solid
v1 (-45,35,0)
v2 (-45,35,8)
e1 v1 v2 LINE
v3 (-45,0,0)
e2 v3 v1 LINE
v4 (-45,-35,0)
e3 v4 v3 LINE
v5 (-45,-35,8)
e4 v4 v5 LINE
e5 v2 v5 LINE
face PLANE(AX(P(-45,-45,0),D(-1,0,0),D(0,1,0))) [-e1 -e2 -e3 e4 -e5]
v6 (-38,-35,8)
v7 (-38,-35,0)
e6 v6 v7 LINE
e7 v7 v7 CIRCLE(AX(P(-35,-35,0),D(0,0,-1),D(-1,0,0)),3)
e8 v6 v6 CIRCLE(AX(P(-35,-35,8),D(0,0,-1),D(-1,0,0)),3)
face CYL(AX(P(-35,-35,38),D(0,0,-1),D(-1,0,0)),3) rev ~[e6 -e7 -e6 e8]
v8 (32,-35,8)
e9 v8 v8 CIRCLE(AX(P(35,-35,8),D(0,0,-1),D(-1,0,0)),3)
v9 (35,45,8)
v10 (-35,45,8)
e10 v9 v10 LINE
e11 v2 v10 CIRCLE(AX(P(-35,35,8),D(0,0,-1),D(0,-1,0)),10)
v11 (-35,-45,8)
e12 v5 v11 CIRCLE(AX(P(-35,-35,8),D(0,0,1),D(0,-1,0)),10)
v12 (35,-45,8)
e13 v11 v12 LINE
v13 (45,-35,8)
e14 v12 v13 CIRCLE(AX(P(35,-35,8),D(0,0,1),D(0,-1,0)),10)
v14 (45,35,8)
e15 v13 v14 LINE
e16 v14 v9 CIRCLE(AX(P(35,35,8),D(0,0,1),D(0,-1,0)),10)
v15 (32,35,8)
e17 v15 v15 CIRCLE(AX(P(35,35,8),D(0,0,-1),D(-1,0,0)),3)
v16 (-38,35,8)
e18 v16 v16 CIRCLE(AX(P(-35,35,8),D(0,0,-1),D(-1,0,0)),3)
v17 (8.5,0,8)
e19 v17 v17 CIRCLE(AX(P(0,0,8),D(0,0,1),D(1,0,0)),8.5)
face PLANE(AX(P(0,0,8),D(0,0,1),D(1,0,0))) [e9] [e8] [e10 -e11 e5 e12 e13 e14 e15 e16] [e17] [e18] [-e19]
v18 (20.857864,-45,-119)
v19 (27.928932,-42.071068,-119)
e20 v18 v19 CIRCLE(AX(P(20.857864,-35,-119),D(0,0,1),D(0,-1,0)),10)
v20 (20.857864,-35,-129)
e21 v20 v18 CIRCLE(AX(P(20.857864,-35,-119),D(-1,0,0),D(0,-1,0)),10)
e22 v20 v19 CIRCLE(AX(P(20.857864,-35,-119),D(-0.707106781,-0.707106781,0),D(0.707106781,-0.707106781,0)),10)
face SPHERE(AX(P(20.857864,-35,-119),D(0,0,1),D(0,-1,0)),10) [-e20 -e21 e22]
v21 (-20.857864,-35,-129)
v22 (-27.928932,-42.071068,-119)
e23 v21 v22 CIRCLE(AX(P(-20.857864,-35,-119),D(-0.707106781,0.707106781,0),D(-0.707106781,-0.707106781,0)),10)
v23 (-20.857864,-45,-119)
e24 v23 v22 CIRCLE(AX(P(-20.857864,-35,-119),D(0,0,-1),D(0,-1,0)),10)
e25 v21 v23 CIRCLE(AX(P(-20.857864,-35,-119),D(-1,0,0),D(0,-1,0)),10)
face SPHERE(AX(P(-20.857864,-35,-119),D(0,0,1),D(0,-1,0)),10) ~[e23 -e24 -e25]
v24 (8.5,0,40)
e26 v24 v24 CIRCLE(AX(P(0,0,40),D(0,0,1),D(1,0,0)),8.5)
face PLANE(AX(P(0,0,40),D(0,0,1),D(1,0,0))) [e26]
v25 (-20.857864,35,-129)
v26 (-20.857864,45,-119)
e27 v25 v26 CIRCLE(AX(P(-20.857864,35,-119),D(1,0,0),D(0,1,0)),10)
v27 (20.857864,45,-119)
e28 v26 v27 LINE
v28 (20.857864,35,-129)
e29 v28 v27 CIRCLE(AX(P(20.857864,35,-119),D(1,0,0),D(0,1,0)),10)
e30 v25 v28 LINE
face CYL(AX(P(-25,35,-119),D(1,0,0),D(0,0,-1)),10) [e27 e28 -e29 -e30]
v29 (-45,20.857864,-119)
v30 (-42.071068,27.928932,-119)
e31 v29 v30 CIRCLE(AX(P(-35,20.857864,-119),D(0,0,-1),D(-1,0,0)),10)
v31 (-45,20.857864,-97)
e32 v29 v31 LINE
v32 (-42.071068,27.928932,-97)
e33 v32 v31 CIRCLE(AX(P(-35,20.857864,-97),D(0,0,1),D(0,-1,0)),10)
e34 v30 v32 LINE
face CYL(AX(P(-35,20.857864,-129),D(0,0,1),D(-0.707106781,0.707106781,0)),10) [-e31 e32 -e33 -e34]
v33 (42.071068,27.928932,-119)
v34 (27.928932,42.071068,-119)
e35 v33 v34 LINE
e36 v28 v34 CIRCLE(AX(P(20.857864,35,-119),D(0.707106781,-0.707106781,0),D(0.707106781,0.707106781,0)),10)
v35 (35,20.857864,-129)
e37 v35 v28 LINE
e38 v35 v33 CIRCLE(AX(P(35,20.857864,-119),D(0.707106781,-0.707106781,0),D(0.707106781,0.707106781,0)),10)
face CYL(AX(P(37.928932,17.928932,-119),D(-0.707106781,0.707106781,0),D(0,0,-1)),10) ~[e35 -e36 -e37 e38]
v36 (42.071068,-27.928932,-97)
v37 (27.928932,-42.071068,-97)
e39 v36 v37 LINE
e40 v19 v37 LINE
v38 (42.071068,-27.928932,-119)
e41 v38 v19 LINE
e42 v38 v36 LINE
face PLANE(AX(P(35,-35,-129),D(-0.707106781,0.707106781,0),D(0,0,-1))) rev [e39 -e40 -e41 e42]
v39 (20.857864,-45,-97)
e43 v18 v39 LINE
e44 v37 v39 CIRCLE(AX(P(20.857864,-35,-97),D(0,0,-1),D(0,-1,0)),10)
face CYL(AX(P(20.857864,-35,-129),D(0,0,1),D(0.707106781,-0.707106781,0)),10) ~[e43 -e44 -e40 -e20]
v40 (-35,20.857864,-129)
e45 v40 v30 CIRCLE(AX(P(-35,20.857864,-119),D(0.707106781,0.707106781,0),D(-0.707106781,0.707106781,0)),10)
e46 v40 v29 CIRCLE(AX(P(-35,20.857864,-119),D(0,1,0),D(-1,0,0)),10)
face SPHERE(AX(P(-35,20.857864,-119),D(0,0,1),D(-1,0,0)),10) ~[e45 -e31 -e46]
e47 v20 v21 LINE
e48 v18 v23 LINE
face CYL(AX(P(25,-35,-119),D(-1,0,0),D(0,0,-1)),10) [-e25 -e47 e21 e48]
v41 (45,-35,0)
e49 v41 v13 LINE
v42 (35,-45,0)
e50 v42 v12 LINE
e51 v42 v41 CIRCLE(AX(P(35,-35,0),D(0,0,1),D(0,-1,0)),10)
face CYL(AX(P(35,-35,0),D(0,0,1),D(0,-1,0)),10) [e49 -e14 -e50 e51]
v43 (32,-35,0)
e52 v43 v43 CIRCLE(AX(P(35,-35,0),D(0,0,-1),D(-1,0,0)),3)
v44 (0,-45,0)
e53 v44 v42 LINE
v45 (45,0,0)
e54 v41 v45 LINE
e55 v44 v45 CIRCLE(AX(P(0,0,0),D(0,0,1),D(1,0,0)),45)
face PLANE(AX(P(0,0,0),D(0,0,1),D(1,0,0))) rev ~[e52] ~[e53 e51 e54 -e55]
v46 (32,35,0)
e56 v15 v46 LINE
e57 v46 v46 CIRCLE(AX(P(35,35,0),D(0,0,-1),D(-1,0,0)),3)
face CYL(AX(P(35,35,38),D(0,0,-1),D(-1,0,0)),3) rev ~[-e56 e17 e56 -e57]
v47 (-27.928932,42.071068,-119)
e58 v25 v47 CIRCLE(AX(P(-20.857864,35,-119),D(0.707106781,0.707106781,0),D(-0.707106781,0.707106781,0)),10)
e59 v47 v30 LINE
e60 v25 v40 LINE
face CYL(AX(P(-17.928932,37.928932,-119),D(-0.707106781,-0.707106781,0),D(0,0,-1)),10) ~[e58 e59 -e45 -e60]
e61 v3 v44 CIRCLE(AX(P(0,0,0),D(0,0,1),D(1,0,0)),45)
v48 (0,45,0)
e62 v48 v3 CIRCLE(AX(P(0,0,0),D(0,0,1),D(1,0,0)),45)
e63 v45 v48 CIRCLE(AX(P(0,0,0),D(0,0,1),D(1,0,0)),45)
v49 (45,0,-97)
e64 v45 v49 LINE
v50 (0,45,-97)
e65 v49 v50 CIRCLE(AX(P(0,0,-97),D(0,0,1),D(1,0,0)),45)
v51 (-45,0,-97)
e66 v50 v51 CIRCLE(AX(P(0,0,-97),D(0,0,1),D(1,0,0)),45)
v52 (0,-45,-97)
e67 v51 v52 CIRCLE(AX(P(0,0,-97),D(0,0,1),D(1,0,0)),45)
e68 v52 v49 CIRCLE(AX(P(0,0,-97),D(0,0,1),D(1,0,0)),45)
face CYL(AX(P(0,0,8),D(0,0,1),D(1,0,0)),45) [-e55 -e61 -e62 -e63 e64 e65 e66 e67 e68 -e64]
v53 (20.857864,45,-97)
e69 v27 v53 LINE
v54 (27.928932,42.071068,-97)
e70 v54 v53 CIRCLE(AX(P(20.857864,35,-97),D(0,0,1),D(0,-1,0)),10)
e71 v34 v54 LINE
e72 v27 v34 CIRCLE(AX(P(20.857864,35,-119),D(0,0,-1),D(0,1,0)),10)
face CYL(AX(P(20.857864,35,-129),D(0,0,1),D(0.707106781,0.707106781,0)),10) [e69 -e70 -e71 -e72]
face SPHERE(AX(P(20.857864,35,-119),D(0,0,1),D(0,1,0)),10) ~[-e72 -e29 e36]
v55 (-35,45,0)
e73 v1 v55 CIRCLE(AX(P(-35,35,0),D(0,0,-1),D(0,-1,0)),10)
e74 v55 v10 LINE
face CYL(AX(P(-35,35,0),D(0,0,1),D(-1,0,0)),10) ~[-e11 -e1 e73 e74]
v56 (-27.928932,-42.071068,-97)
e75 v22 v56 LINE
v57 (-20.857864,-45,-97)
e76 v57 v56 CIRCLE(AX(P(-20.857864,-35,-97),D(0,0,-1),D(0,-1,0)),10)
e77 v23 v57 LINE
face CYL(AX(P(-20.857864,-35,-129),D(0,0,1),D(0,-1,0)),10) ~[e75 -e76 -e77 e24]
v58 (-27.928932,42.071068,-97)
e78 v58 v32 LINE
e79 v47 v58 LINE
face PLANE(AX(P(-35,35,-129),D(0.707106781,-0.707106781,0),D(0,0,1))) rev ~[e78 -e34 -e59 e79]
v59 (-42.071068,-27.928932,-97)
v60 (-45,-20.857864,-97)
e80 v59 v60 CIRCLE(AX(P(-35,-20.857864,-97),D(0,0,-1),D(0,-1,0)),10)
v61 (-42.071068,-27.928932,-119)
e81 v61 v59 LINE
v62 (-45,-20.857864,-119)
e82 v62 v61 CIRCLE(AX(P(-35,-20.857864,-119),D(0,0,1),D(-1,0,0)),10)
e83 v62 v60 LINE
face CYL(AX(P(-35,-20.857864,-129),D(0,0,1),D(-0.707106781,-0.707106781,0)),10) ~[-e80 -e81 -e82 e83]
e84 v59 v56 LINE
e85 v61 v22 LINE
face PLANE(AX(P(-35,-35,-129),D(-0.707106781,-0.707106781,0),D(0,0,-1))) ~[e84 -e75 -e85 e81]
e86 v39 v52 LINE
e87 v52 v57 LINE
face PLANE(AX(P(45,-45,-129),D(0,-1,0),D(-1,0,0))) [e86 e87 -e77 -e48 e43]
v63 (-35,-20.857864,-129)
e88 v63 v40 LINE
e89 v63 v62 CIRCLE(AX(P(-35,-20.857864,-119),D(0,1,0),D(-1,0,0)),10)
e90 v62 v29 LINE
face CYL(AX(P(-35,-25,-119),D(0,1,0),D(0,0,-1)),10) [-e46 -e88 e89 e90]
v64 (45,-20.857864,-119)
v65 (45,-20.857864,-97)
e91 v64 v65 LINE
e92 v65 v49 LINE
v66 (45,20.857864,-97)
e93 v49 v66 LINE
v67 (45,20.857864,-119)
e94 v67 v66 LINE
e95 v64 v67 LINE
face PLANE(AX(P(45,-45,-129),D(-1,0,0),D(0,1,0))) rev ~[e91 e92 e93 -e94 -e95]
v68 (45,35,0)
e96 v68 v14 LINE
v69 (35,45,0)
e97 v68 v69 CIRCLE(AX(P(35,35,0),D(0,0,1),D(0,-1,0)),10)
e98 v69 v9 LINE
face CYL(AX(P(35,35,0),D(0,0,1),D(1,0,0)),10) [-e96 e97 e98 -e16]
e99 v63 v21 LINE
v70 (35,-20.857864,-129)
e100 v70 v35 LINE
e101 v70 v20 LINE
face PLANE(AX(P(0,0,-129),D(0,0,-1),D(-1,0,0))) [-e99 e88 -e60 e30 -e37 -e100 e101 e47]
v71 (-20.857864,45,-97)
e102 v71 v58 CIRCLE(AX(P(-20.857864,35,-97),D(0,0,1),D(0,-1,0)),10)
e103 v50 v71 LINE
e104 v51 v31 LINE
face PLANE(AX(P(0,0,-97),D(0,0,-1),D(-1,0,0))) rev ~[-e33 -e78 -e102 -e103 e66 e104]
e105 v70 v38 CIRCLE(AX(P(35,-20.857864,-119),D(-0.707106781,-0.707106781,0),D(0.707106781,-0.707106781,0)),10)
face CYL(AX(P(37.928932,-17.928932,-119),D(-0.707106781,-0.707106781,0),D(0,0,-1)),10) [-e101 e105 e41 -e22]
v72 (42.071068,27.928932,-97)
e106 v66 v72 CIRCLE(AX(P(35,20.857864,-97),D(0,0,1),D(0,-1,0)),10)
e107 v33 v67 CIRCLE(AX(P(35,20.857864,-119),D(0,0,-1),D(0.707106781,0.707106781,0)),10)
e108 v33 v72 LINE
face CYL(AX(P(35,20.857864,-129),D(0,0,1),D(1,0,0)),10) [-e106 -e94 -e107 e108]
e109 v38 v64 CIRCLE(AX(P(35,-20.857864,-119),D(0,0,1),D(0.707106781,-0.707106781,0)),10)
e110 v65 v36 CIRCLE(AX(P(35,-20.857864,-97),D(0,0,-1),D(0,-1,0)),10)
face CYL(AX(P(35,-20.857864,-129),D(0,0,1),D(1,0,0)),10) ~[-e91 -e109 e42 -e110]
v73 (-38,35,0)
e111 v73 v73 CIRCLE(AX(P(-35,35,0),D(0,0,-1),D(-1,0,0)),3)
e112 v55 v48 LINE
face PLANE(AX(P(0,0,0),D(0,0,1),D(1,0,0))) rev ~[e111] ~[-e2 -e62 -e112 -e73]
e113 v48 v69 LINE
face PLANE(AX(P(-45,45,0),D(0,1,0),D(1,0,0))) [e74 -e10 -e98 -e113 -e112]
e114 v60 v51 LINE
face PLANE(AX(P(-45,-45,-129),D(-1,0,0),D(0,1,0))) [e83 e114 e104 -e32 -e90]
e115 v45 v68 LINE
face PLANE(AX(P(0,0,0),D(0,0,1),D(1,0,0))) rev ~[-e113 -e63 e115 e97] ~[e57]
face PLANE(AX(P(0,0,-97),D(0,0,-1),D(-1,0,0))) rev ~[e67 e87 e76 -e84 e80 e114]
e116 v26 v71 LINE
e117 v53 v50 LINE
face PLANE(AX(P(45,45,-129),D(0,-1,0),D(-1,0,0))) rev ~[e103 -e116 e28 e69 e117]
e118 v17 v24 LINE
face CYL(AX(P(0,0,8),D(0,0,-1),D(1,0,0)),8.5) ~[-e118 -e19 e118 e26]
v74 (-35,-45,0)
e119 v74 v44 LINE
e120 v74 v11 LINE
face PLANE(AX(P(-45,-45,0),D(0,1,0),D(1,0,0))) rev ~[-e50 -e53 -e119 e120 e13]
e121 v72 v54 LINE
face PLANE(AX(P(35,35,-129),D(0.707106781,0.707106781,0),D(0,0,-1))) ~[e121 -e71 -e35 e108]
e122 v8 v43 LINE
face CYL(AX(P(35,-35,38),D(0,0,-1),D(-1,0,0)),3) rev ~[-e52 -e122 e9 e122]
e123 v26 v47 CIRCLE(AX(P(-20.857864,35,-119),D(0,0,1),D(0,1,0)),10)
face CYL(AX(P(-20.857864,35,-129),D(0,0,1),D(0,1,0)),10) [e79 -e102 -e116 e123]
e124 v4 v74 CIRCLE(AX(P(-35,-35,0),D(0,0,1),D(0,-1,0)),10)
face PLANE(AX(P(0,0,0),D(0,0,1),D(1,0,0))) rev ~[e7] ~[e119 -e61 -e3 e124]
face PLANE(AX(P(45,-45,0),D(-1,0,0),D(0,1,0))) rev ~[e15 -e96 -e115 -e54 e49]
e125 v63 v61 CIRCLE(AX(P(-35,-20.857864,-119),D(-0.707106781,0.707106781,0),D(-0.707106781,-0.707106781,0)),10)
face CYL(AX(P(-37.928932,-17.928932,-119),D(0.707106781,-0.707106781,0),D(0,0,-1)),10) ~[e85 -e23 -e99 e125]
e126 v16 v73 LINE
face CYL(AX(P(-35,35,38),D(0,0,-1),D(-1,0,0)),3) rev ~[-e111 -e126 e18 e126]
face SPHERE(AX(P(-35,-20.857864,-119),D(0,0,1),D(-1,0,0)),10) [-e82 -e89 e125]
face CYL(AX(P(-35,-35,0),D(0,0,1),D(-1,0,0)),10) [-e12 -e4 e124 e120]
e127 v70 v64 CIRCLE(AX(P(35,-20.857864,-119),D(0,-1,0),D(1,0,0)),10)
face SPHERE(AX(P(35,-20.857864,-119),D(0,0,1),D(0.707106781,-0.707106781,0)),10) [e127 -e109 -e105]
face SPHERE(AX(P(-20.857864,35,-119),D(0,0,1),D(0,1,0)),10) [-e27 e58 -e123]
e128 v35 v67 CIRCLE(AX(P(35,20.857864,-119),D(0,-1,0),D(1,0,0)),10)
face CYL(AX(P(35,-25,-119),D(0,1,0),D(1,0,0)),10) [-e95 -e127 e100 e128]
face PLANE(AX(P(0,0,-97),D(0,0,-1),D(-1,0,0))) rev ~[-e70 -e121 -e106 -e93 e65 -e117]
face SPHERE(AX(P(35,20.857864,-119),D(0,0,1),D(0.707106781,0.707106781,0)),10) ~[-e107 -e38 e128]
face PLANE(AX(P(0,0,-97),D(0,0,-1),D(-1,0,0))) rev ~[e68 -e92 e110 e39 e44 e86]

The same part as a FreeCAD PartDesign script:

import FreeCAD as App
import Part
import Sketcher

V = App.Vector


def edges_at(feature, points):
    """Names of the edges that pass closest to the given points."""
    edges = feature.Shape.Edges
    near = lambda p: min(range(len(edges)), key=lambda i: edges[i].distToShape(Part.Vertex(*p))[0])
    return sorted({f"Edge{near(p) + 1}" for p in points})


def add_polygon(sketch, points):
    """Adds a closed chain of lines whose ends are joined by coincident constraints."""
    first, n = sketch.GeometryCount, len(points)
    for a, b in zip(points, points[1:] + points[:1]):
        sketch.addGeometry(Part.LineSegment(App.Vector(*a, 0), App.Vector(*b, 0)), False)
    for i in range(n):
        sketch.addConstraint(Sketcher.Constraint("Coincident", first + i, 2, first + (i + 1) % n, 1))

doc = App.newDocument("Part")
body = doc.addObject("PartDesign::Body", "Body")

# Sketch on XY plane
sketch1 = body.newObject("Sketcher::SketchObject", "Sketch")
sketch1.AttachmentSupport = (doc.getObject("XY_Plane"), [""])
sketch1.MapMode = "FlatFace"
add_polygon(sketch1, [(-45, 45), (-45, -45), (45, -45), (45, 45)])  # lines 0-3
sketch1.addConstraint([
    Sketcher.Constraint("Vertical", 0),
    Sketcher.Constraint("Horizontal", 1),
    Sketcher.Constraint("Vertical", 2),
    Sketcher.Constraint("Horizontal", 3),
    Sketcher.Constraint("Symmetric", 0, 2, 2, 2, -1, 1),
    Sketcher.Constraint("Equal", 3, 0),
    Sketcher.Constraint("DistanceX", 1, 1, 1, 2, 90.0),
])
pad1 = body.newObject("PartDesign::Pad", "Pad")
pad1.Profile = sketch1
pad1.Length = 8
doc.recompute()

fillet = body.newObject("PartDesign::Fillet", "Fillet")
fillet.Base = (pad1, edges_at(pad1, [
    (-45, 45, 4),
    (45, 45, 4),
    (45, -45, 4),
    (-45, -45, 4),
]))
fillet.Radius = 10

# Sketch on XY plane
sketch2 = body.newObject("Sketcher::SketchObject", "Sketch001")
sketch2.AttachmentSupport = (doc.getObject("XY_Plane"), [""])
sketch2.MapMode = "FlatFace"
sketch2.AttachmentOffset = App.Placement(V(0, 0, 8), App.Rotation())
sketch2.addGeometry(Part.Circle(V(0, 0, 0), V(0, 0, 1), 45), False)
sketch2.addConstraint([
    Sketcher.Constraint("Coincident", 0, 3, -1, 1),
    Sketcher.Constraint("Diameter", 0, 90.0),
])
pad2 = body.newObject("PartDesign::Pad", "Pad001")
pad2.Profile = sketch2
pad2.Length = 137
pad2.Reversed = True

# Sketch on XY plane
sketch3 = body.newObject("Sketcher::SketchObject", "Sketch002")
sketch3.AttachmentSupport = (doc.getObject("XY_Plane"), [""])
sketch3.MapMode = "FlatFace"
sketch3.AttachmentOffset = App.Placement(V(0, 0, 8), App.Rotation())
sketch3.addGeometry(Part.Circle(V(0, 0, 0), V(0, 0, 1), 8.5), False)
sketch3.addConstraint([
    Sketcher.Constraint("Coincident", 0, 3, -1, 1),
    Sketcher.Constraint("Diameter", 0, 17.0),
])
pad3 = body.newObject("PartDesign::Pad", "Pad002")
pad3.Profile = sketch3
pad3.Length = 32

# Sketch on XY plane
sketch4 = body.newObject("Sketcher::SketchObject", "Sketch003")
sketch4.AttachmentSupport = (doc.getObject("XY_Plane"), [""])
sketch4.MapMode = "FlatFace"
sketch4.AttachmentOffset = App.Placement(V(0, 0, 8), App.Rotation())
sketch4.addGeometry([
    Part.Circle(V(-35, 35, 0), V(0, 0, 1), 3),
    Part.Circle(V(35, 35, 0), V(0, 0, 1), 3),
    Part.Circle(V(35, -35, 0), V(0, 0, 1), 3),
    Part.Circle(V(-35, -35, 0), V(0, 0, 1), 3),
], False)
sketch4.addConstraint([
    Sketcher.Constraint("Equal", 0, 1),
    Sketcher.Constraint("Equal", 1, 2),
    Sketcher.Constraint("Equal", 2, 3),
    Sketcher.Constraint("Symmetric", 0, 3, 2, 3, -1, 1),
    Sketcher.Constraint("Symmetric", 1, 3, 3, 3, -1, 1),
    Sketcher.Constraint("Symmetric", 0, 3, 1, 3, -2),
    Sketcher.Constraint("Diameter", 0, 6.0),
    Sketcher.Constraint("DistanceX", 0, 3, -1, 1, 35.0),
    Sketcher.Constraint("DistanceY", -1, 1, 0, 3, 35.0),
])
doc.recompute()
hole = body.newObject("PartDesign::Hole", "Hole")
hole.Profile = sketch4
hole.ThreadType = "None"
hole.Diameter = 6
hole.DepthType = "Dimension"
hole.Depth = 30
hole.DrillPoint = "Angled"
hole.DrillPointAngle = 118

# Sketch on XY plane
sketch5 = body.newObject("Sketcher::SketchObject", "Sketch004")
sketch5.AttachmentSupport = (doc.getObject("XY_Plane"), [""])
sketch5.MapMode = "FlatFace"
sketch5.AttachmentOffset = App.Placement(V(0, 0, -129), App.Rotation())
add_polygon(sketch5, [(45, 45), (45, -45), (-45, -45), (-45, 45)])  # lines 0-3
sketch5.addConstraint([
    Sketcher.Constraint("Vertical", 0),
    Sketcher.Constraint("Horizontal", 1),
    Sketcher.Constraint("Vertical", 2),
    Sketcher.Constraint("Horizontal", 3),
    Sketcher.Constraint("Symmetric", 0, 2, 2, 2, -1, 1),
    Sketcher.Constraint("Equal", 3, 0),
    Sketcher.Constraint("DistanceX", 1, 2, 1, 1, 90.0),
])
pad4 = body.newObject("PartDesign::Pad", "Pad003")
pad4.Profile = sketch5
pad4.Length = 32
doc.recompute()

chamfer = body.newObject("PartDesign::Chamfer", "Chamfer")
chamfer.Base = (pad4, edges_at(pad4, [
    (45, -45, -113),
    (45, 45, -113),
    (-45, 45, -113),
    (-45, -45, -113),
]))
chamfer.Size = 20
doc.recompute()

fillet2 = body.newObject("PartDesign::Fillet", "Fillet001")
fillet2.Base = (chamfer, edges_at(chamfer, [
    (45, 0, -129),
    (45, 25, -113),
    (45, -25, -113),
    (-45, 0, -129),
    (0, 45, -129),
    (0, -45, -129),
    (35, 35, -129),
    (-35, 35, -129),
    (-35, -35, -129),
    (35, -35, -129),
    (-25, -45, -113),
    (25, -45, -113),
    (-45, 25, -113),
    (-45, -25, -113),
    (25, 45, -113),
    (-25, 45, -113),
]))
fillet2.Radius = 10

doc.recompute()
